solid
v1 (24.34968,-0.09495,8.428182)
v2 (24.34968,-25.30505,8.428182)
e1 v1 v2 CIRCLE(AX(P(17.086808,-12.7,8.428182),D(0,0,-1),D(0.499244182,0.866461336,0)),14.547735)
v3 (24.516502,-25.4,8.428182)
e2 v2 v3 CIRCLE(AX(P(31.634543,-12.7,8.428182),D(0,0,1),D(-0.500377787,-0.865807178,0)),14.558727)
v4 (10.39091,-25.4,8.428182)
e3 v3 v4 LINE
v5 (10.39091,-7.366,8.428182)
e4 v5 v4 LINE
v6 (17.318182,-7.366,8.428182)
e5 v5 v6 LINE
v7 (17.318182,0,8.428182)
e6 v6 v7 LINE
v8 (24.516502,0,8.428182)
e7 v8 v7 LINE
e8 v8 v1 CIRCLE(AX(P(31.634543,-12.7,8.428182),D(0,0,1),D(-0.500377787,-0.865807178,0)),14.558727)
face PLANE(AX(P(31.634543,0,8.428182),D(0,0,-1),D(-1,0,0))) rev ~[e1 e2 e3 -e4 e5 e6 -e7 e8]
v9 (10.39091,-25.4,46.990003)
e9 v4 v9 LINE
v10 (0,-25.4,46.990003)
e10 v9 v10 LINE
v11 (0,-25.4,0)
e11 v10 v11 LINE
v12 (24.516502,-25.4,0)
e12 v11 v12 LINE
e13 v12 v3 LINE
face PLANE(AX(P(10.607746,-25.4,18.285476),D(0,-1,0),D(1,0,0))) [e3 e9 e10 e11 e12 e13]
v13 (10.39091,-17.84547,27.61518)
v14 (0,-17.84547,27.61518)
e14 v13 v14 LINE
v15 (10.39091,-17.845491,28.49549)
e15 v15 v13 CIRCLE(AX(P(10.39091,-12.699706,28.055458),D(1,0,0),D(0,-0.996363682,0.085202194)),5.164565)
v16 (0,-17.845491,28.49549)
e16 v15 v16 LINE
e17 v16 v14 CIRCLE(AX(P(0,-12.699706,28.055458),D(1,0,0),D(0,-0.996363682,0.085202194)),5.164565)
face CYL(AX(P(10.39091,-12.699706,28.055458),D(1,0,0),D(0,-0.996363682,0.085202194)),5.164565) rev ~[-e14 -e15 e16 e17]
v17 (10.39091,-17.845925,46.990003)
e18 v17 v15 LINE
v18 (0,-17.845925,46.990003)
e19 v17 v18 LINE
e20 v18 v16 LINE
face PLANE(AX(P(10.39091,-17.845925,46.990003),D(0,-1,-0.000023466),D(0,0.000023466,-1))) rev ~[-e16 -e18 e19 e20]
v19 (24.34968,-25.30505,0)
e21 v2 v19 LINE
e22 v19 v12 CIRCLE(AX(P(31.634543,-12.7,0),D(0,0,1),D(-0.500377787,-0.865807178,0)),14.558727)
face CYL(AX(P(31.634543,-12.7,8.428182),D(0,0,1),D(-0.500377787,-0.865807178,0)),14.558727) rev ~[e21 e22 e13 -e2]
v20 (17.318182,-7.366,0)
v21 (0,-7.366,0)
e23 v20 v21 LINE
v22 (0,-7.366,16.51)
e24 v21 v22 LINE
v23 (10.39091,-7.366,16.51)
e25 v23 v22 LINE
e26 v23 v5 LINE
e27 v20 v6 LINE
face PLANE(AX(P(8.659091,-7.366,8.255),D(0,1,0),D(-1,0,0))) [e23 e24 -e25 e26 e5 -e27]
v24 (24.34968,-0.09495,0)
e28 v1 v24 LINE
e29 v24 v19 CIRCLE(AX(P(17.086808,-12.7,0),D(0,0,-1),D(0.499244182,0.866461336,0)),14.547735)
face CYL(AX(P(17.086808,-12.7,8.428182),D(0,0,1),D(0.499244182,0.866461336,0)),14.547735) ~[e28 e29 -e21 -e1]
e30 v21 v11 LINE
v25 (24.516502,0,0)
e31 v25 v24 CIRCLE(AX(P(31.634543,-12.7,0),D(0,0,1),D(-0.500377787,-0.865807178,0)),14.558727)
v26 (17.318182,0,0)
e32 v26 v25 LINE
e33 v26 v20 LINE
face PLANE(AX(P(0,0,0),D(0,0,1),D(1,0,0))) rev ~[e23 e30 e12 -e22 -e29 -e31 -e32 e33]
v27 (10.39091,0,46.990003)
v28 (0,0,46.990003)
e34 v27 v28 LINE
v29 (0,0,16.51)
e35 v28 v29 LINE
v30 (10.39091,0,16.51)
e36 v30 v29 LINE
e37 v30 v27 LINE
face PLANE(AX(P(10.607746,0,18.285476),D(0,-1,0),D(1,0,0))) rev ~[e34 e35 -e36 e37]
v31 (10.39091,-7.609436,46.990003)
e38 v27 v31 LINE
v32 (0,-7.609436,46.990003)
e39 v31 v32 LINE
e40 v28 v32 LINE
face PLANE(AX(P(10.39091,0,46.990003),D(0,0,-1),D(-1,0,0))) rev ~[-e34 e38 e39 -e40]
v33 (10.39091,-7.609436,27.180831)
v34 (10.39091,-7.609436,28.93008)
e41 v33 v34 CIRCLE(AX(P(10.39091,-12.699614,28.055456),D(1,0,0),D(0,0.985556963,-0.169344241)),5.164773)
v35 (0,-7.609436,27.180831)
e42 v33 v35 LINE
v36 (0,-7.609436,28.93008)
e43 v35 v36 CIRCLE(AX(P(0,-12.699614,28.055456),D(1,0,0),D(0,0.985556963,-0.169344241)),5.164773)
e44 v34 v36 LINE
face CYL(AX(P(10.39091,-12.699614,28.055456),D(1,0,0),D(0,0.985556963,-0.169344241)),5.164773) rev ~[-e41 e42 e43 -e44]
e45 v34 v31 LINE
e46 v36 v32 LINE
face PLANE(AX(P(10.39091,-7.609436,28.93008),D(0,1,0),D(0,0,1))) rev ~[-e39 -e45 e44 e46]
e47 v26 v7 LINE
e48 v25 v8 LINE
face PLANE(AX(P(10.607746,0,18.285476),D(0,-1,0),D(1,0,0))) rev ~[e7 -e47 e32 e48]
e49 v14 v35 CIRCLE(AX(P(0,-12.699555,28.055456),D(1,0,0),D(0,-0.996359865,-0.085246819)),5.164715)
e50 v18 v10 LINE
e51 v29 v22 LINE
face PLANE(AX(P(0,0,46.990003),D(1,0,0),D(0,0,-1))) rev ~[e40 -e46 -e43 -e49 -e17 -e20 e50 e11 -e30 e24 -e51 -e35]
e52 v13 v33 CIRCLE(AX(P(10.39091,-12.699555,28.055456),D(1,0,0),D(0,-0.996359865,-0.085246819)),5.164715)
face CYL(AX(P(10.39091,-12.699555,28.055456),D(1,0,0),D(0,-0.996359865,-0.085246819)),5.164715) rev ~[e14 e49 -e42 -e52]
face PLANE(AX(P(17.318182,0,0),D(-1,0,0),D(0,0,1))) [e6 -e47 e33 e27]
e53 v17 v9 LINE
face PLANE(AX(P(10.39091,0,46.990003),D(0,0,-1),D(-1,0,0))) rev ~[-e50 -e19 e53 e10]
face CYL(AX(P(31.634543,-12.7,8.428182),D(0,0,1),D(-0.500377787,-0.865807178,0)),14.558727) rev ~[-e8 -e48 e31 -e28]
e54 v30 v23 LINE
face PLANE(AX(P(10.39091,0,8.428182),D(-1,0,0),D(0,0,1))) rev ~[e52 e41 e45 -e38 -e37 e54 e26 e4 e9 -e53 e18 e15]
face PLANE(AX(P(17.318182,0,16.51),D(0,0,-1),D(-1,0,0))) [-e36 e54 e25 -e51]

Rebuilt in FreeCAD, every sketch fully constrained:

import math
import FreeCAD as App
import Part
import Sketcher
Q = App.Units.Quantity

doc = App.newDocument("Part")
body = doc.addObject("PartDesign::Body", "Body")

sketch1 = body.newObject("Sketcher::SketchObject", "Sketch")
sketch1.AttachmentSupport = (doc.getObject("XZ_Plane"), [""])
sketch1.MapMode = "FlatFace"
sketch1.addGeometry([
    Part.LineSegment(App.Vector(0, 0, 0), App.Vector(31.634543, 0, 0)),
    Part.LineSegment(App.Vector(31.634543, 0, 0), App.Vector(31.634543, 8.428182, 0)),
    Part.LineSegment(App.Vector(31.634543, 8.428182, 0), App.Vector(10.39091, 8.428182, 0)),
    Part.LineSegment(App.Vector(10.39091, 8.428182, 0), App.Vector(10.39091, 46.990003, 0)),
    Part.LineSegment(App.Vector(10.39091, 46.990003, 0), App.Vector(0, 46.990003, 0)),
    Part.LineSegment(App.Vector(0, 46.990003, 0), App.Vector(0, 0, 0)),
], False)
sketch1.addConstraint([
    Sketcher.Constraint("Coincident", 0, 2, 1, 1),
    Sketcher.Constraint("Coincident", 1, 2, 2, 1),
    Sketcher.Constraint("Coincident", 2, 2, 3, 1),
    Sketcher.Constraint("Coincident", 3, 2, 4, 1),
    Sketcher.Constraint("Coincident", 4, 2, 5, 1),
    Sketcher.Constraint("Coincident", 5, 2, 0, 1),
    Sketcher.Constraint("Horizontal", 0),
    Sketcher.Constraint("Vertical", 1),
    Sketcher.Constraint("Horizontal", 2),
    Sketcher.Constraint("Vertical", 3),
    Sketcher.Constraint("Horizontal", 4),
    Sketcher.Constraint("Vertical", 5),
    Sketcher.Constraint("Coincident", 5, 2, -1, 1),
    Sketcher.Constraint("DistanceY", 5, 2, 5, 1, Q("1.8500001 in")),
    Sketcher.Constraint("DistanceX", 4, 2, 4, 1, Q("10.39091 mm")),
    Sketcher.Constraint("DistanceY", 3, 1, 3, 2, Q("38.561821 mm")),
    Sketcher.Constraint("DistanceX", 0, 1, 0, 2, Q("31.634543 mm")),
])
pad1 = body.newObject("PartDesign::Pad", "Pad")
pad1.Profile = sketch1
pad1.Length = Q("1 in")

sketch2 = body.newObject("Sketcher::SketchObject", "Sketch001")
sketch2.AttachmentSupport = (doc.getObject("XY_Plane"), [""])
sketch2.MapMode = "FlatFace"
sketch2.AttachmentOffset = App.Placement(App.Vector(0, 0, 8.428182), App.Rotation())
sketch2.addGeometry([
    Part.ArcOfCircle(Part.Circle(App.Vector(17.086808, -12.7, 0), App.Vector(0, 0, 1), 14.547735), math.radians(-60.049992), math.radians(60.049992)),
    Part.ArcOfCircle(Part.Circle(App.Vector(31.634543, -12.7, 0), App.Vector(0, 0, 1), 14.558727), math.radians(-120.024997), math.radians(120.024997)),
], False)
sketch2.addConstraint([
    Sketcher.Constraint("Coincident", 0, 1, 1, 1),
    Sketcher.Constraint("Coincident", 1, 2, 0, 2),
    Sketcher.Constraint("Horizontal", 0, 3, 1, 3),
    Sketcher.Constraint("DistanceY", 0, 3, -1, 1, Q("0.5 in")),
    Sketcher.Constraint("Radius", 0, Q("14.547735 mm")),
    Sketcher.Constraint("Radius", 1, Q("14.558727 mm")),
    Sketcher.Constraint("DistanceY", 0, 1, 1, 2, Q("25.2101 mm")),
    Sketcher.Constraint("DistanceX", -1, 1, 0, 1, Q("24.34968 mm")),
])
pocket1 = body.newObject("PartDesign::Pocket", "Pocket")
pocket1.Profile = sketch2
pocket1.Length = Q("1 in")

sketch3 = body.newObject("Sketcher::SketchObject", "Sketch002")
sketch3.AttachmentSupport = (doc.getObject("YZ_Plane"), [""])
sketch3.MapMode = "FlatFace"
sketch3.AttachmentOffset = App.Placement(App.Vector(0, 0, 10.39091), App.Rotation())
sketch3.addGeometry([
    Part.ArcOfCircle(Part.Circle(App.Vector(-12.699706, 28.055458, 0), App.Vector(0, 0, 1), 5.164565), math.radians(175.112348), math.radians(184.890386)),
    Part.ArcOfCircle(Part.Circle(App.Vector(-12.699555, 28.055456, 0), App.Vector(0, 0, 1), 5.164715), math.radians(-175.109782), math.radians(-9.749804)),
    Part.ArcOfCircle(Part.Circle(App.Vector(-12.699614, 28.055456, 0), App.Vector(0, 0, 1), 5.164773), math.radians(-9.749694), math.radians(9.749694)),
    Part.LineSegment(App.Vector(-7.609436, 28.93008, 0), App.Vector(-7.609436, 46.990003, 0)),
    Part.LineSegment(App.Vector(-7.609436, 46.990003, 0), App.Vector(-17.845925, 46.990003, 0)),
    Part.LineSegment(App.Vector(-17.845925, 46.990003, 0), App.Vector(-17.845491, 28.49549, 0)),
], False)
sketch3.addConstraint([
    Sketcher.Constraint("Coincident", 0, 2, 1, 1),
    Sketcher.Constraint("Coincident", 1, 2, 2, 1),
    Sketcher.Constraint("Coincident", 2, 2, 3, 1),
    Sketcher.Constraint("Coincident", 3, 2, 4, 1),
    Sketcher.Constraint("Coincident", 4, 2, 5, 1),
    Sketcher.Constraint("Coincident", 5, 2, 0, 1),
    Sketcher.Constraint("Vertical", 3),
    Sketcher.Constraint("Horizontal", 4),
    Sketcher.Constraint("DistanceY", -1, 1, 3, 2, Q("1.8500001 in")),
    Sketcher.Constraint("Radius", 0, Q("5.164565 mm")),
    Sketcher.Constraint("Radius", 1, Q("5.164715 mm")),
    Sketcher.Constraint("Radius", 2, Q("5.164773 mm")),
    Sketcher.Constraint("DistanceX", 4, 2, 4, 1, Q("10.236489 mm")),
    Sketcher.Constraint("DistanceY", 0, 2, 2, 2, Q("1.3149 mm")),
    Sketcher.Constraint("DistanceY", 3, 1, 3, 2, Q("18.059923 mm")),
    Sketcher.Constraint("DistanceX", 0, 2, -1, 1, Q("17.84547 mm")),
    Sketcher.Constraint("DistanceY", -1, 1, 1, 2, Q("27.180831 mm")),
    Sketcher.Constraint("DistanceX", 5, 2, -1, 1, Q("17.845491 mm")),
    Sketcher.Constraint("DistanceY", -1, 1, 5, 2, Q("28.49549 mm")),
    Sketcher.Constraint("DistanceX", 0, 3, 1, 3, Q("0.000151 mm")),
    Sketcher.Constraint("DistanceX", 1, 3, 2, 2, Q("5.090119 mm")),
])
pocket2 = body.newObject("PartDesign::Pocket", "Pocket001")
pocket2.Profile = sketch3
pocket2.Length = Q("1 in")

sketch4 = body.newObject("Sketcher::SketchObject", "Sketch003")
sketch4.AttachmentSupport = (doc.getObject("XZ_Plane"), [""])
sketch4.MapMode = "FlatFace"
sketch4.addGeometry([
    Part.LineSegment(App.Vector(17.318182, 16.51, 0), App.Vector(17.318182, 0, 0)),
    Part.LineSegment(App.Vector(17.318182, 0, 0), App.Vector(0, 0, 0)),
    Part.LineSegment(App.Vector(0, 0, 0), App.Vector(0, 16.51, 0)),
    Part.LineSegment(App.Vector(0, 16.51, 0), App.Vector(17.318182, 16.51, 0)),
], False)
sketch4.addConstraint([
    Sketcher.Constraint("Coincident", 0, 2, 1, 1),
    Sketcher.Constraint("Coincident", 1, 2, 2, 1),
    Sketcher.Constraint("Coincident", 2, 2, 3, 1),
    Sketcher.Constraint("Coincident", 3, 2, 0, 1),
    Sketcher.Constraint("Vertical", 0),
    Sketcher.Constraint("Horizontal", 1),
    Sketcher.Constraint("Vertical", 2),
    Sketcher.Constraint("Horizontal", 3),
    Sketcher.Constraint("Coincident", 1, 2, -1, 1),
    Sketcher.Constraint("DistanceY", 0, 2, 0, 1, Q("0.65 in")),
    Sketcher.Constraint("DistanceX", 1, 2, 1, 1, Q("17.318182 mm")),
])
pocket3 = body.newObject("PartDesign::Pocket", "Pocket002")
pocket3.Profile = sketch4
pocket3.Length = Q("0.29 in")
pocket3.Reversed = True

doc.recompute()
